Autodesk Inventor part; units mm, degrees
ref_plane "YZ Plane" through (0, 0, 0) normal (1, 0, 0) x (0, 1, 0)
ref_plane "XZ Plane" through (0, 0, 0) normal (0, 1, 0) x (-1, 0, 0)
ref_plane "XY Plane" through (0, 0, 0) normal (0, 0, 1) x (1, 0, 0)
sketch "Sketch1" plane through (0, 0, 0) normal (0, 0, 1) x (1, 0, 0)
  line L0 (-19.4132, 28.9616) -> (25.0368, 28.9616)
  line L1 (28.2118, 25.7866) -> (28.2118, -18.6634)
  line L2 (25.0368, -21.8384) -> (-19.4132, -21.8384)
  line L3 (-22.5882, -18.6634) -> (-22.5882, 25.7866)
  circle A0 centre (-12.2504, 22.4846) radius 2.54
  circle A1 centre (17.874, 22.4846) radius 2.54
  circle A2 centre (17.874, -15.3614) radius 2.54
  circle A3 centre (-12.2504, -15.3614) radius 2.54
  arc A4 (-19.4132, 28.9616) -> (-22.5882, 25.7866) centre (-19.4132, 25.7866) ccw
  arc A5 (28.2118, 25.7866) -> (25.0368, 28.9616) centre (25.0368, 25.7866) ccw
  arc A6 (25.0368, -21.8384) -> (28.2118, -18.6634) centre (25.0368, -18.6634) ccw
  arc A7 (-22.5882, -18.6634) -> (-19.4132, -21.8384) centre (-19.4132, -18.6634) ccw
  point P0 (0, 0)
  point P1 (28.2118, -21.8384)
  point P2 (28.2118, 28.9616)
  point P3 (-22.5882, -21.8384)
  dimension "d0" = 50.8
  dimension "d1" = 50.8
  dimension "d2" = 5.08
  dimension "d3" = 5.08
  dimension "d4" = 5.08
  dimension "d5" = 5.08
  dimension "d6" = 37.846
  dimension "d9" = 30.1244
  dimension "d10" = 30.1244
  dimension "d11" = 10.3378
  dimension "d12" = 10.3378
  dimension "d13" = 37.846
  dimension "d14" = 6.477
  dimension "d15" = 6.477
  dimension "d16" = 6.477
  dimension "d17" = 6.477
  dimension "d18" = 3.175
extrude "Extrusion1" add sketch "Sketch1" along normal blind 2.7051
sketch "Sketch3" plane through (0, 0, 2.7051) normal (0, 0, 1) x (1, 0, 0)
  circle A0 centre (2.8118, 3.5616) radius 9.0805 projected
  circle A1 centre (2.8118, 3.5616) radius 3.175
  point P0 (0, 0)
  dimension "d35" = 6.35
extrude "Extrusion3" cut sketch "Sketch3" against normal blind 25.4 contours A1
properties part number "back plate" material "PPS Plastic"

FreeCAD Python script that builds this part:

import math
import FreeCAD as App
import Part
import Sketcher
Q = App.Units.Quantity

doc = App.newDocument("Part")
body = doc.addObject("PartDesign::Body", "Body")

sketch1 = body.newObject("Sketcher::SketchObject", "Sketch")
sketch1.AttachmentSupport = (doc.getObject("XY_Plane"), [""])
sketch1.MapMode = "FlatFace"
sketch1.addGeometry([
    Part.LineSegment(App.Vector(25.0368, 28.9616, 0), App.Vector(-19.4132, 28.9616, 0)),
    Part.ArcOfCircle(Part.Circle(App.Vector(-19.4132, 25.7866, 0), App.Vector(0, 0, 1), 3.175), math.radians(90), math.radians(180)),
    Part.LineSegment(App.Vector(-22.5882, 25.7866, 0), App.Vector(-22.5882, -18.6634, 0)),
    Part.ArcOfCircle(Part.Circle(App.Vector(-19.4132, -18.6634, 0), App.Vector(0, 0, 1), 3.175), math.radians(180), math.radians(270)),
    Part.LineSegment(App.Vector(-19.4132, -21.8384, 0), App.Vector(25.0368, -21.8384, 0)),
    Part.ArcOfCircle(Part.Circle(App.Vector(25.0368, -18.6634, 0), App.Vector(0, 0, 1), 3.175), math.radians(-90), math.radians(0)),
    Part.LineSegment(App.Vector(28.2118, -18.6634, 0), App.Vector(28.2118, 25.7866, 0)),
    Part.ArcOfCircle(Part.Circle(App.Vector(25.0368, 25.7866, 0), App.Vector(0, 0, 1), 3.175), math.radians(0), math.radians(90)),
    Part.Circle(App.Vector(-12.2504, -15.3614, 0), App.Vector(0, 0, 1), 2.54),
    Part.Circle(App.Vector(17.874, -15.3614, 0), App.Vector(0, 0, 1), 2.54),
    Part.Circle(App.Vector(-12.2504, 22.4846, 0), App.Vector(0, 0, 1), 2.54),
    Part.Circle(App.Vector(17.874, 22.4846, 0), App.Vector(0, 0, 1), 2.54),
], False)
sketch1.addConstraint([
    Sketcher.Constraint("Tangent", 0, 2, 1, 1),
    Sketcher.Constraint("Tangent", 1, 2, 2, 1),
    Sketcher.Constraint("Tangent", 2, 2, 3, 1),
    Sketcher.Constraint("Tangent", 3, 2, 4, 1),
    Sketcher.Constraint("Tangent", 4, 2, 5, 1),
    Sketcher.Constraint("Tangent", 5, 2, 6, 1),
    Sketcher.Constraint("Tangent", 6, 2, 7, 1),
    Sketcher.Constraint("Tangent", 7, 2, 0, 1),
    Sketcher.Constraint("Horizontal", 0),
    Sketcher.Constraint("Vertical", 2),
    Sketcher.Constraint("Horizontal", 4),
    Sketcher.Constraint("Vertical", 6),
    Sketcher.Constraint("Equal", 1, 3),
    Sketcher.Constraint("Equal", 3, 5),
    Sketcher.Constraint("Equal", 5, 7),
    Sketcher.Constraint("Equal", 8, 9),
    Sketcher.Constraint("Equal", 9, 10),
    Sketcher.Constraint("Equal", 10, 11),
    Sketcher.Constraint("Horizontal", 8, 3, 9, 3),
    Sketcher.Constraint("Horizontal", 10, 3, 11, 3),
    Sketcher.Constraint("Vertical", 8, 3, 10, 3),
    Sketcher.Constraint("Vertical", 9, 3, 11, 3),
    Sketcher.Constraint("Equal", 4, 2),
    Sketcher.Constraint("Diameter", 8, Q("0.2 in")),
    Sketcher.Constraint("Radius", 1, Q("0.125 in")),
    Sketcher.Constraint("DistanceY", 8, 3, 10, 3, Q("1.49 in")),
    Sketcher.Constraint("DistanceX", 8, 3, 9, 3, Q("1.186 in")),
    Sketcher.Constraint("DistanceY", 10, 3, 0, 2, Q("0.255 in")),
    Sketcher.Constraint("DistanceX", 1, 2, 10, 3, Q("0.407 in")),
    Sketcher.Constraint("DistanceY", 3, 2, 8, 3, Q("0.255 in")),
    Sketcher.Constraint("DistanceX", 1, 3, -1, 1, Q("0.7643 in")),
    Sketcher.Constraint("DistanceY", -1, 1, 1, 3, Q("25.7866 mm")),
])
pad1 = body.newObject("PartDesign::Pad", "Pad")
pad1.Profile = sketch1
pad1.Length = Q("0.1065 in")

sketch2 = body.newObject("Sketcher::SketchObject", "Sketch001")
sketch2.AttachmentSupport = (doc.getObject("XY_Plane"), [""])
sketch2.MapMode = "FlatFace"
sketch2.AttachmentOffset = App.Placement(App.Vector(0, 0, 0.1065 * 25.4), App.Rotation())
sketch2.addGeometry(Part.Circle(App.Vector(2.8118, 3.5616, 0), App.Vector(0, 0, 1), 3.175), False)
sketch2.addConstraint([
    Sketcher.Constraint("Diameter", 0, Q("0.25 in")),
    Sketcher.Constraint("DistanceX", -1, 1, 0, 3, Q("0.1107 in")),
    Sketcher.Constraint("DistanceY", -1, 1, 0, 3, Q("3.5616 mm")),
])
pocket1 = body.newObject("PartDesign::Pocket", "Pocket")
pocket1.Profile = sketch2
pocket1.Length = Q("1 in")

doc.recompute()
